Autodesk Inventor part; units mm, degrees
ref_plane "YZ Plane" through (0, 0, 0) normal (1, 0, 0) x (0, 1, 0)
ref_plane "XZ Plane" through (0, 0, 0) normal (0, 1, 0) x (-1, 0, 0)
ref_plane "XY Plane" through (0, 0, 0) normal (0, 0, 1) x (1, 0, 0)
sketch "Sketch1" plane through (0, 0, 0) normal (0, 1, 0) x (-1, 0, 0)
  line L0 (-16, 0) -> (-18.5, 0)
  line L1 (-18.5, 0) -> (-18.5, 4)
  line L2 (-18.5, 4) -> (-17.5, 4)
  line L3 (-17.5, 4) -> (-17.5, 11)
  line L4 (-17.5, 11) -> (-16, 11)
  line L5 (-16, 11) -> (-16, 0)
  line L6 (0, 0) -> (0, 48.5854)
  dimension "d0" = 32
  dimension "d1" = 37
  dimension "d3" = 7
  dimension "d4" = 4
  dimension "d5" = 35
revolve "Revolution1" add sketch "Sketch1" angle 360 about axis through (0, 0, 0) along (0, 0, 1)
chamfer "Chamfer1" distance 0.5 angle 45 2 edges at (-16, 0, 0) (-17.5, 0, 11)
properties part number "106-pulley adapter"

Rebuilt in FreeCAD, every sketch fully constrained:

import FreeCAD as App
import Part
import Sketcher
from FreeCAD import Vector
Q = App.Units.Quantity


def edges_at(feature, points):
    """Names of the edges that pass closest to the given points."""
    edges = feature.Shape.Edges
    near = lambda p: min(range(len(edges)), key=lambda i: edges[i].distToShape(Part.Vertex(*p))[0])
    return sorted({f"Edge{near(p) + 1}" for p in points})

doc = App.newDocument("Part")
body = doc.addObject("PartDesign::Body", "Body")

sketch1 = body.newObject("Sketcher::SketchObject", "Sketch")
sketch1.AttachmentSupport = (doc.getObject("XZ_Plane"), [""])
sketch1.MapMode = "FlatFace"
sketch1.addGeometry(Part.LineSegment(Vector(18.5, 0, 0), Vector(16, 0, 0)), False)
sketch1.addGeometry(Part.LineSegment(Vector(16, 0, 0), Vector(16, 11, 0)), False)
sketch1.addGeometry(Part.LineSegment(Vector(16, 11, 0), Vector(17.5, 11, 0)), False)
sketch1.addGeometry(Part.LineSegment(Vector(17.5, 11, 0), Vector(17.5, 4, 0)), False)
sketch1.addGeometry(Part.LineSegment(Vector(17.5, 4, 0), Vector(18.5, 4, 0)), False)
sketch1.addGeometry(Part.LineSegment(Vector(18.5, 4, 0), Vector(18.5, 0, 0)), False)
sketch1.addConstraint(Sketcher.Constraint("Coincident", 0, 2, 1, 1))
sketch1.addConstraint(Sketcher.Constraint("Coincident", 1, 2, 2, 1))
sketch1.addConstraint(Sketcher.Constraint("Coincident", 2, 2, 3, 1))
sketch1.addConstraint(Sketcher.Constraint("Coincident", 3, 2, 4, 1))
sketch1.addConstraint(Sketcher.Constraint("Coincident", 4, 2, 5, 1))
sketch1.addConstraint(Sketcher.Constraint("Coincident", 5, 2, 0, 1))
sketch1.addConstraint(Sketcher.Constraint("Horizontal", 0))
sketch1.addConstraint(Sketcher.Constraint("Vertical", 1))
sketch1.addConstraint(Sketcher.Constraint("Horizontal", 2))
sketch1.addConstraint(Sketcher.Constraint("Vertical", 3))
sketch1.addConstraint(Sketcher.Constraint("Horizontal", 4))
sketch1.addConstraint(Sketcher.Constraint("Vertical", 5))
sketch1.addConstraint(Sketcher.Constraint("PointOnObject", 0, 2, -1))
sketch1.addConstraint(Sketcher.Constraint("DistanceY", 3, 2, 3, 1, Q("7 mm")))
sketch1.addConstraint(Sketcher.Constraint("DistanceY", 5, 2, 5, 1, Q("4 mm")))
sketch1.addConstraint(Sketcher.Constraint("DistanceX", 4, 1, 4, 2, Q("1 mm")))
sketch1.addConstraint(Sketcher.Constraint("DistanceX", 0, 2, 0, 1, Q("2.5 mm")))
sketch1.addConstraint(Sketcher.Constraint("DistanceX", -1, 1, 0, 2, Q("16 mm")))
revolution = body.newObject("PartDesign::Revolution", "Revolution")
revolution.Profile = sketch1
revolution.ReferenceAxis = (sketch1, ["V_Axis"])
revolution.Angle = 360
doc.recompute()

chamfer = body.newObject("PartDesign::Chamfer", "Chamfer")
chamfer.Base = (revolution, edges_at(revolution, [(-16, 0, 0), (-17.5, 0, 11)]))
chamfer.Size = 0.5

doc.recompute()
